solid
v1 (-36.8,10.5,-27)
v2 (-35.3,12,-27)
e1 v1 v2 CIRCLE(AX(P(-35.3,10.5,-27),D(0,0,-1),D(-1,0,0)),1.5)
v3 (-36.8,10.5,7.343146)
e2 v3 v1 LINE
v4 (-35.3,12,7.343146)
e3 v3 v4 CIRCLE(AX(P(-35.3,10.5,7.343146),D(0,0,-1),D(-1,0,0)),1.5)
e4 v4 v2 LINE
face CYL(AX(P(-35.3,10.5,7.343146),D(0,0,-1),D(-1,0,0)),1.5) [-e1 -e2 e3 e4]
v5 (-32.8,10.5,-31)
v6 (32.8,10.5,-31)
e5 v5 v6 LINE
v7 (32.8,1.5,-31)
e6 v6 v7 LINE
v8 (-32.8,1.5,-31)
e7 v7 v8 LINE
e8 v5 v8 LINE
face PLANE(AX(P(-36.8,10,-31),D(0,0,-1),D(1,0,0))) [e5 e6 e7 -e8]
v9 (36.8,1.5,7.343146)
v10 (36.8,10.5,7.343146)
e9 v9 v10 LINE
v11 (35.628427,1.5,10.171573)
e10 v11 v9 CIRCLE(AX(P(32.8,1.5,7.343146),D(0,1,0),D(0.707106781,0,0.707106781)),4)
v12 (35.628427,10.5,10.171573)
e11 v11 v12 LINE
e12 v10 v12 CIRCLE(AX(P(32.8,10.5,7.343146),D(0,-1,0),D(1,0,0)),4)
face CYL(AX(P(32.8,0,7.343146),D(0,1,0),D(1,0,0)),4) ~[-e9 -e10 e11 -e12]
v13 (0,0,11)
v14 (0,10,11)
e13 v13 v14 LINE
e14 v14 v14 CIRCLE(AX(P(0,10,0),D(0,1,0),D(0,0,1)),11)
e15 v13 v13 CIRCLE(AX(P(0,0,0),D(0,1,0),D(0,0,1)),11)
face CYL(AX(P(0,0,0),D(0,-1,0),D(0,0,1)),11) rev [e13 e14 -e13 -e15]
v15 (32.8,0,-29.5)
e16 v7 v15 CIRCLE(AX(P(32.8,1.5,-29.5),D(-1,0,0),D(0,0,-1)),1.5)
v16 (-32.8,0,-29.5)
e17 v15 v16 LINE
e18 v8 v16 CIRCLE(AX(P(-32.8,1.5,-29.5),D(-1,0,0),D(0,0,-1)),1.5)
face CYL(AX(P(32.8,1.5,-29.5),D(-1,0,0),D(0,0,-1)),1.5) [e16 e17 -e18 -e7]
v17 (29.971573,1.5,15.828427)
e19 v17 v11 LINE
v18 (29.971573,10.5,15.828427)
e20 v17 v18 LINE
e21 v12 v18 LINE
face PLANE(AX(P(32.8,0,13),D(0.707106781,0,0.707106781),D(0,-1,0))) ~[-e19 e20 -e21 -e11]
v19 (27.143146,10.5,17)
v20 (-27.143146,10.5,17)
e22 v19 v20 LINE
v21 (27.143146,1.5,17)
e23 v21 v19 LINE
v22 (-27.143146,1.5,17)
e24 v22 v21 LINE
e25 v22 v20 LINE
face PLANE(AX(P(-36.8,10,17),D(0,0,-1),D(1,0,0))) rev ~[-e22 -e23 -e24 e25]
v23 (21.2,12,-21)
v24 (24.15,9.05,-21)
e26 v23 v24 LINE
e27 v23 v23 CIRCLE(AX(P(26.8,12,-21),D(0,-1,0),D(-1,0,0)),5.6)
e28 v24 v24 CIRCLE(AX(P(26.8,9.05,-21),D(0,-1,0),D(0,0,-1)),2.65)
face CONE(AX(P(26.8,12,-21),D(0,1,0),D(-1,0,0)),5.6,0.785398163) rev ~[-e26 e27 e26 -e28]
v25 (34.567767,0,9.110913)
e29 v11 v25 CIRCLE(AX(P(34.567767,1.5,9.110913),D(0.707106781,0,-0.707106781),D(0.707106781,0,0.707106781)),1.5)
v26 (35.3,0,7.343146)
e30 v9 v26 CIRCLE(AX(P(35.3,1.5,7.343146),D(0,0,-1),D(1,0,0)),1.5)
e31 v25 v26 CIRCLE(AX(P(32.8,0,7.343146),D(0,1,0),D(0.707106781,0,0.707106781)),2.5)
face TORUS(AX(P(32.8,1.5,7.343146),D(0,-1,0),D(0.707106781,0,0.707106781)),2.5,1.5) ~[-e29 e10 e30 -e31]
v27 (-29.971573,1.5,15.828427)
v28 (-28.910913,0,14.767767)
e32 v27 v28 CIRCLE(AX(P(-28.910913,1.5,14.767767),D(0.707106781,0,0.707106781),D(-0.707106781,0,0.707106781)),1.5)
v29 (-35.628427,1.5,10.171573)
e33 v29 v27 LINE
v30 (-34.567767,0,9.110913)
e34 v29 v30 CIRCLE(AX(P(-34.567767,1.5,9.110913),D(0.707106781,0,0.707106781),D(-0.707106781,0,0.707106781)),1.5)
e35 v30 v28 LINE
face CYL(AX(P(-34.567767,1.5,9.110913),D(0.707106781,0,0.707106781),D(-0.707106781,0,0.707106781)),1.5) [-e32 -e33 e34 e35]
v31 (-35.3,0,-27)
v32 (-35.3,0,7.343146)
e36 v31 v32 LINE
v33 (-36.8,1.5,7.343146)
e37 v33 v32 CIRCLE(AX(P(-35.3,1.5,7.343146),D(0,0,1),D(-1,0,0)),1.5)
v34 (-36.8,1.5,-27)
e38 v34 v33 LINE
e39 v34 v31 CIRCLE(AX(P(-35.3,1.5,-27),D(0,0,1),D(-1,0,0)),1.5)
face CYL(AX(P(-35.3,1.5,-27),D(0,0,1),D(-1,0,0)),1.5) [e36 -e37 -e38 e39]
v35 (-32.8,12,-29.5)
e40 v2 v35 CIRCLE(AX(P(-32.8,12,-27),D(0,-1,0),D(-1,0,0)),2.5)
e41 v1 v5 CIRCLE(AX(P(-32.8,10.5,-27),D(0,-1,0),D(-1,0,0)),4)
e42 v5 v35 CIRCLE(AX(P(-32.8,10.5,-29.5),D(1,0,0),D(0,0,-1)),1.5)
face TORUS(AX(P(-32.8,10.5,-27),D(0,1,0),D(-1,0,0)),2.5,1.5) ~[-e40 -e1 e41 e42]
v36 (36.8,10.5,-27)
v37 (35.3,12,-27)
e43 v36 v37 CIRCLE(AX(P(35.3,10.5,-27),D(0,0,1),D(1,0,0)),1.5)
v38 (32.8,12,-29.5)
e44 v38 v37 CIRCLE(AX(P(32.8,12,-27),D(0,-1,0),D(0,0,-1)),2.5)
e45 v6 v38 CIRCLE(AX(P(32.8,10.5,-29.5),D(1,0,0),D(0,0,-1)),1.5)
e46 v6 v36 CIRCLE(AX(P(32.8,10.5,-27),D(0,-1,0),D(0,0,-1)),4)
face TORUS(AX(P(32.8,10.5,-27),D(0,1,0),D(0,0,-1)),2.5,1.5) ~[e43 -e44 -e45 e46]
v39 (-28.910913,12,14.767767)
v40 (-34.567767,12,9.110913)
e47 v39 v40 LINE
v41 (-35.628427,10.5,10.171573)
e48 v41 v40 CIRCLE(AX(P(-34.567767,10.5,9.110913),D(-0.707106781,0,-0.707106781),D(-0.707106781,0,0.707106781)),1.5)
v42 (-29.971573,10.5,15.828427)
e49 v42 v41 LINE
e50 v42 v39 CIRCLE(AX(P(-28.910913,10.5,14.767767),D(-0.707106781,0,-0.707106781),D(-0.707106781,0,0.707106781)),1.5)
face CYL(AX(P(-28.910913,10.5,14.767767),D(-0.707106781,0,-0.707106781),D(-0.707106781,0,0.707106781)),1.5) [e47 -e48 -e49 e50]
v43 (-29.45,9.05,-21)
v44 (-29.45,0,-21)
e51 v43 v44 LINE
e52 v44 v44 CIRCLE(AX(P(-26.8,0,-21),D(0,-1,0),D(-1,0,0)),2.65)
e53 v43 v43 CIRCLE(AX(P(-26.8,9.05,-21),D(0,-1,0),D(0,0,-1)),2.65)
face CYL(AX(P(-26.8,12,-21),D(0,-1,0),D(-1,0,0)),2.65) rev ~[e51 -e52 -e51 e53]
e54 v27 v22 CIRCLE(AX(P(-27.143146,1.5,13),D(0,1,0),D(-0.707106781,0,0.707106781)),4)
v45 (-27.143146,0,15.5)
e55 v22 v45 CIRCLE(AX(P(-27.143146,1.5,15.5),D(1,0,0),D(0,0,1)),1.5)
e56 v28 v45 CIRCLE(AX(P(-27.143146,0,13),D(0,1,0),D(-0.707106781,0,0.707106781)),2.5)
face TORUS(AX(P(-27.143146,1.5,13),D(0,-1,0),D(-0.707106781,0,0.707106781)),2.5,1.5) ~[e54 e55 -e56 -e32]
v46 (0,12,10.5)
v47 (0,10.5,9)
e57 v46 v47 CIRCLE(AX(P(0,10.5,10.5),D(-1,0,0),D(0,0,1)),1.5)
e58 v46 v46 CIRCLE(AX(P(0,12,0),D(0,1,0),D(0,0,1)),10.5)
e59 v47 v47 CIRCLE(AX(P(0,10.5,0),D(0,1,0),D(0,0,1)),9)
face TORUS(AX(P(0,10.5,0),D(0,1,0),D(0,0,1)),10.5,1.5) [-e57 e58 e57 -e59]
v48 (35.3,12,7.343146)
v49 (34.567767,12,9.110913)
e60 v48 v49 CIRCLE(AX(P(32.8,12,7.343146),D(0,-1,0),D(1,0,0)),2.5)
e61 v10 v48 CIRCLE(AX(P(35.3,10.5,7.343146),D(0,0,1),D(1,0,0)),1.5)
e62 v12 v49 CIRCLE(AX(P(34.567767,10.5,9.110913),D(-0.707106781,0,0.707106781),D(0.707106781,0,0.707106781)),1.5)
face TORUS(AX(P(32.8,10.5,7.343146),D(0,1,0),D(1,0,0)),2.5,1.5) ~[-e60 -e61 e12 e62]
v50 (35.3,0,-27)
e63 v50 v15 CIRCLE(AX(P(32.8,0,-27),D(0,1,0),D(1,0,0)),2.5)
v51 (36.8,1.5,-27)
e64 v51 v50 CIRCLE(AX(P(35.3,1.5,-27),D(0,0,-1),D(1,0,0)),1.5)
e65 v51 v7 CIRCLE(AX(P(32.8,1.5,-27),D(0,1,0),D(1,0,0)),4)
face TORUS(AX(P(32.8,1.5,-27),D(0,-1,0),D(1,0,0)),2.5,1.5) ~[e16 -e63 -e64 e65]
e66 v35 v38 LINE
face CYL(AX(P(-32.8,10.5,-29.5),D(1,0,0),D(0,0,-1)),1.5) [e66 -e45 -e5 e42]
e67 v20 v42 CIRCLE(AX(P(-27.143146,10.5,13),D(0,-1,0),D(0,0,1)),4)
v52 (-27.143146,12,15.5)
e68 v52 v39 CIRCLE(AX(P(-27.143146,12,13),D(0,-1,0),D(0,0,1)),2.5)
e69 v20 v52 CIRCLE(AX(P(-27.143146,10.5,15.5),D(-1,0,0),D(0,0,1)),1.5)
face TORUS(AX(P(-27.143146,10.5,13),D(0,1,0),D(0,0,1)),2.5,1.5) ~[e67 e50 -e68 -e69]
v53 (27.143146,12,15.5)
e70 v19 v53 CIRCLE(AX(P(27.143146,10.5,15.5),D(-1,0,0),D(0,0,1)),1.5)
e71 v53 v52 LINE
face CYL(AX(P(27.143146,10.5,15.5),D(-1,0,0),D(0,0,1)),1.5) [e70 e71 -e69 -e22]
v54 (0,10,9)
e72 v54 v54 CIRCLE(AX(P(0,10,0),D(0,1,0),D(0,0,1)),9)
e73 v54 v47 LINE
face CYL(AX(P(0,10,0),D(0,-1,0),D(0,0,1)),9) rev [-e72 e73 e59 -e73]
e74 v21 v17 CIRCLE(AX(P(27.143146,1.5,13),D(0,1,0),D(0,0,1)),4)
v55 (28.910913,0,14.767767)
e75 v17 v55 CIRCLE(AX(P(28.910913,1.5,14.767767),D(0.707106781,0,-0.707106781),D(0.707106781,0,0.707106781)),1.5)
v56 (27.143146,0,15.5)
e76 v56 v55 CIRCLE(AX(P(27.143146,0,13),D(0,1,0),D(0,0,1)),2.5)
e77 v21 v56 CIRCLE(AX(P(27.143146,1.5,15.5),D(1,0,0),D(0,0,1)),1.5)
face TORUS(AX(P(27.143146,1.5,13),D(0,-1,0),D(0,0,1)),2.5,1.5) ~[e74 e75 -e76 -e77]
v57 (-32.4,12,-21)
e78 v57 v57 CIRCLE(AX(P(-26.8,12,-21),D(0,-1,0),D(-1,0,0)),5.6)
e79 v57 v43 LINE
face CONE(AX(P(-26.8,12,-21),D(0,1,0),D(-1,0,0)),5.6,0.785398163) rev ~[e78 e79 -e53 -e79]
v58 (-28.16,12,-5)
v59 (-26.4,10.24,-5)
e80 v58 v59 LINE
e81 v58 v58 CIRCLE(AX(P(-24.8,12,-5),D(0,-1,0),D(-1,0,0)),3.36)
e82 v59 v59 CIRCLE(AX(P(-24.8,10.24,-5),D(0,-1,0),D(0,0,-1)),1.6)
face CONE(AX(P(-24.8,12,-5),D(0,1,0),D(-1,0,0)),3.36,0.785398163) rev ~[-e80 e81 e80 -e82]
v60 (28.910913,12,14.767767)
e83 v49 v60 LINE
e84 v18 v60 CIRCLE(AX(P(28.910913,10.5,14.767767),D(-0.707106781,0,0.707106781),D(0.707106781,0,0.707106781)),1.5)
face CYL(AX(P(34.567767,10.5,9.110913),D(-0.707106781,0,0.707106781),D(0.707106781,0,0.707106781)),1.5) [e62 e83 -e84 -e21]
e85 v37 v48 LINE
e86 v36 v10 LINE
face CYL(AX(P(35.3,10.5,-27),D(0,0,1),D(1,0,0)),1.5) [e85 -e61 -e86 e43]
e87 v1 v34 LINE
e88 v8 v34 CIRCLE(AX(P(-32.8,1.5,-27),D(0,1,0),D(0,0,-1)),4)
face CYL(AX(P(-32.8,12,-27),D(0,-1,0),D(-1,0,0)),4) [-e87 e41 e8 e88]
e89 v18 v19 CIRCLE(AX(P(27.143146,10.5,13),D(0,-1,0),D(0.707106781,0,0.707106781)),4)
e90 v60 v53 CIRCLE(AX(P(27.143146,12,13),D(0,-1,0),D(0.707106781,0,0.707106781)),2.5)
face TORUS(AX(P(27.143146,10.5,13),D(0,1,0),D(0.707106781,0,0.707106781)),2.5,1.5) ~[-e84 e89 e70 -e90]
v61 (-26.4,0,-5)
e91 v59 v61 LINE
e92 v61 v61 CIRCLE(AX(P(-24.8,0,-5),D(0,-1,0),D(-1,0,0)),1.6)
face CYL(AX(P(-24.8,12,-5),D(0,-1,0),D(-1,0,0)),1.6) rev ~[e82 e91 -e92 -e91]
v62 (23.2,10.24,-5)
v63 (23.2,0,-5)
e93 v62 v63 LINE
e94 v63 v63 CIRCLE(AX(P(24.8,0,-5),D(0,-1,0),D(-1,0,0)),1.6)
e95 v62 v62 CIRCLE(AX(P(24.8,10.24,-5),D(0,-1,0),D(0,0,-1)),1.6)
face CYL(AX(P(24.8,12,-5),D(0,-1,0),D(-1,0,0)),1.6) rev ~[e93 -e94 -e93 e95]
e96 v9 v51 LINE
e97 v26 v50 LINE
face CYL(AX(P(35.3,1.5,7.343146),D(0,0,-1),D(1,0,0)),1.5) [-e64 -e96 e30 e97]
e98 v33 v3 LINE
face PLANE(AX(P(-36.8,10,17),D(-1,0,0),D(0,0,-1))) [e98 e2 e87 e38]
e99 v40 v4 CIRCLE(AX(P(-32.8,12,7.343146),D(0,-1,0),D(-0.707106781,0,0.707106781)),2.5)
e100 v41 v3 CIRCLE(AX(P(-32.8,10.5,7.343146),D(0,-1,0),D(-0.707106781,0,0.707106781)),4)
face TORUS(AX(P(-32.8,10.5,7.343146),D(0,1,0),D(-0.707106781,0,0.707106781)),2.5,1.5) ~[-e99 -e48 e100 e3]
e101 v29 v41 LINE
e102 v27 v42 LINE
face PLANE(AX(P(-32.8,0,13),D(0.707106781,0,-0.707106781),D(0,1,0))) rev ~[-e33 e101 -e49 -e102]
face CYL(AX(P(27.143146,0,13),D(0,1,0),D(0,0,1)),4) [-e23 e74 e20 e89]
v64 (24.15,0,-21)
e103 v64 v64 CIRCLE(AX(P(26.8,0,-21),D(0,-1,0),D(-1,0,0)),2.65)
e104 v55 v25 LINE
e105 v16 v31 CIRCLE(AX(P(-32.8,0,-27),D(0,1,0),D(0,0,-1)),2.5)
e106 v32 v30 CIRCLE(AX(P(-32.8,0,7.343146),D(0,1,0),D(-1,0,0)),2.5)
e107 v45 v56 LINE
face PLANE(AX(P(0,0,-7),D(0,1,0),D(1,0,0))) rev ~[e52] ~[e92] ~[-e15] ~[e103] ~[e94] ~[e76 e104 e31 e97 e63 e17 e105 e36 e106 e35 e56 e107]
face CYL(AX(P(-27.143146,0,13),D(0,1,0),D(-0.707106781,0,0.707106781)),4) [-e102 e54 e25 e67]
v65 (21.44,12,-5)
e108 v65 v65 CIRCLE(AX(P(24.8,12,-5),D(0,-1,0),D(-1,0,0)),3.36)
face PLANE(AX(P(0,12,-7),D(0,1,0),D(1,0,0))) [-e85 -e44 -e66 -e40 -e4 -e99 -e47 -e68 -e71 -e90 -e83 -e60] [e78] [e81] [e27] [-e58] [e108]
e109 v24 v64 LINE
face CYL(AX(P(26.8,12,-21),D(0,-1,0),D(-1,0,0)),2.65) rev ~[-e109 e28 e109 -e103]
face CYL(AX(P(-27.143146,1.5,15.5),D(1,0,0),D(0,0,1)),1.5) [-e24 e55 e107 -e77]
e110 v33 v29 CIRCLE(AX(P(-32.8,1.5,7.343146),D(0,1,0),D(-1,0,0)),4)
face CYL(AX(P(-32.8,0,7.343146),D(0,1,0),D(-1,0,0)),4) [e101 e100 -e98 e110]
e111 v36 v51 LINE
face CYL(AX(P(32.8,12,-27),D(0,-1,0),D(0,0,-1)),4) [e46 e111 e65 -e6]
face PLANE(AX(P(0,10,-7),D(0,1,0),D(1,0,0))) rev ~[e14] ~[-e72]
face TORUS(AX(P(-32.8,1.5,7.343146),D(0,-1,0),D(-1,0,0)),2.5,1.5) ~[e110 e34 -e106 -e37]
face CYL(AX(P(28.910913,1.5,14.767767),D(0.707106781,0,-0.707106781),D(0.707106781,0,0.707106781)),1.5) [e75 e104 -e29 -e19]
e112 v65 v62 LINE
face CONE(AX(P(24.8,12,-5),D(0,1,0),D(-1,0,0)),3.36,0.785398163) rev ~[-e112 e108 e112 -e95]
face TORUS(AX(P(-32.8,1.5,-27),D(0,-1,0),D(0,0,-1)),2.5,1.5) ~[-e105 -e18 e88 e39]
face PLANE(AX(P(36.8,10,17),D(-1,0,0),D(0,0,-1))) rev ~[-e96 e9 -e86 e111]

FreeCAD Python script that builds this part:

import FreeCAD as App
import Part
import Sketcher
from FreeCAD import Vector
Q = App.Units.Quantity


def edges_at(feature, points):
    """Names of the edges that pass closest to the given points."""
    edges = feature.Shape.Edges
    near = lambda p: min(range(len(edges)), key=lambda i: edges[i].distToShape(Part.Vertex(*p))[0])
    return sorted({f"Edge{near(p) + 1}" for p in points})

doc = App.newDocument("Part")
params = doc.addObject("Spreadsheet::Sheet", "Params")
for row, (alias, value) in enumerate([
    ("sketch1_diameter", "22 mm"),
    ("sketch1_height", "48 mm"),
    ("sketch1_width", "73.6 mm"),
    ("pad1_length", "10 mm"),
    ("sketch2_diameter", "18 mm"),
    ("sketch2_height", "48 mm"),
    ("sketch2_width", "73.6 mm"),
    ("pad2_length", "2 mm"),
    ("sketch3_diameter", "5.3 mm"),
    ("hole_diameter", "5.3 mm"),
    ("hole_csink_diameter", "11.2 mm"),
    ("chamfer_size", "8 mm"),
    ("fillet_radius", "4 mm"),
    ("fillet2_radius", "1.5 mm"),
    ("sketch4_diameter", "3.2 mm"),
    ("hole2_diameter", "3.2 mm"),
    ("hole2_csink_diameter", "6.72 mm"),
], start=1):
    params.set(f"A{row}", alias)
    params.set(f"B{row}", "=" + value)
    params.setAlias(f"B{row}", alias)

body = doc.addObject("PartDesign::Body", "Body")

# Sketch on XZ plane
sketch1 = doc.addObject("Sketcher::SketchObject", "Sketch")
body.addObject(sketch1)
sketch1.AttachmentSupport = (doc.XZ_Plane, [""])
sketch1.MapMode = "FlatFace"
sketch1.addGeometry([
    Part.LineSegment(Vector(36.8, 17, 0), Vector(36.8, -31, 0)),  # 0
    Part.LineSegment(Vector(36.8, -31, 0), Vector(-36.8, -31, 0)),  # 1
    Part.LineSegment(Vector(-36.8, -31, 0), Vector(-36.8, 17, 0)),  # 2
    Part.LineSegment(Vector(-36.8, 17, 0), Vector(36.8, 17, 0)),  # 3
    Part.Circle(Vector(0, 0, 0), Vector(0, 0, 1), 11),  # 4
], False)
sketch1.addConstraint([
    Sketcher.Constraint("Coincident", 0, 2, 1, 1),
    Sketcher.Constraint("Coincident", 1, 2, 2, 1),
    Sketcher.Constraint("Coincident", 2, 2, 3, 1),
    Sketcher.Constraint("Coincident", 3, 2, 0, 1),
    Sketcher.Constraint("Vertical", 0),
    Sketcher.Constraint("Horizontal", 1),
    Sketcher.Constraint("Vertical", 2),
    Sketcher.Constraint("Horizontal", 3),
    Sketcher.Constraint("Coincident", 4, 3, -1, 1),
    Sketcher.Constraint("Diameter", 4, Q("22 mm")),
    Sketcher.Constraint("DistanceY", 0, 2, 0, 1, Q("48 mm")),
    Sketcher.Constraint("DistanceX", 1, 2, 1, 1, Q("73.6 mm")),
    Sketcher.Constraint("DistanceY", 0, 2, -1, 1, Q("31 mm")),
    Sketcher.Constraint("DistanceX", -1, 1, 0, 2, Q("36.8 mm")),
])
sketch1.setExpression("Constraints[9]", "Params.sketch1_diameter")
sketch1.setExpression("Constraints[10]", "Params.sketch1_height")
sketch1.setExpression("Constraints[11]", "Params.sketch1_width")
pad1 = doc.addObject("PartDesign::Pad", "Pad")
body.addObject(pad1)
pad1.Profile = sketch1
pad1.setExpression("Length", "Params.pad1_length")
pad1.Reversed = True

# Sketch on XZ plane
sketch2 = doc.addObject("Sketcher::SketchObject", "Sketch001")
body.addObject(sketch2)
sketch2.AttachmentSupport = (doc.XZ_Plane, [""])
sketch2.MapMode = "FlatFace"
sketch2.AttachmentOffset = App.Placement(Vector(0, 0, -10), App.Rotation())
sketch2.addGeometry([
    Part.LineSegment(Vector(-36.8, -31, 0), Vector(-36.8, 17, 0)),  # 0
    Part.LineSegment(Vector(-36.8, 17, 0), Vector(36.8, 17, 0)),  # 1
    Part.LineSegment(Vector(36.8, 17, 0), Vector(36.8, -31, 0)),  # 2
    Part.LineSegment(Vector(36.8, -31, 0), Vector(-36.8, -31, 0)),  # 3
    Part.Circle(Vector(0, 0, 0), Vector(0, 0, 1), 9),  # 4
], False)
sketch2.addConstraint([
    Sketcher.Constraint("Coincident", 0, 2, 1, 1),
    Sketcher.Constraint("Coincident", 1, 2, 2, 1),
    Sketcher.Constraint("Coincident", 2, 2, 3, 1),
    Sketcher.Constraint("Coincident", 3, 2, 0, 1),
    Sketcher.Constraint("Vertical", 0),
    Sketcher.Constraint("Horizontal", 1),
    Sketcher.Constraint("Vertical", 2),
    Sketcher.Constraint("Horizontal", 3),
    Sketcher.Constraint("Coincident", 4, 3, -1, 1),
    Sketcher.Constraint("Diameter", 4, Q("18 mm")),
    Sketcher.Constraint("DistanceY", 0, 1, 0, 2, Q("48 mm")),
    Sketcher.Constraint("DistanceX", 1, 1, 1, 2, Q("73.6 mm")),
    Sketcher.Constraint("DistanceY", -1, 1, 0, 2, Q("17 mm")),
    Sketcher.Constraint("DistanceX", 0, 2, -1, 1, Q("36.8 mm")),
])
sketch2.setExpression("Constraints[9]", "Params.sketch2_diameter")
sketch2.setExpression("Constraints[10]", "Params.sketch2_height")
sketch2.setExpression("Constraints[11]", "Params.sketch2_width")
pad2 = doc.addObject("PartDesign::Pad", "Pad001")
body.addObject(pad2)
pad2.Profile = sketch2
pad2.setExpression("Length", "Params.pad2_length")
pad2.Reversed = True

# Sketch on XZ plane
sketch3 = doc.addObject("Sketcher::SketchObject", "Sketch002")
body.addObject(sketch3)
sketch3.AttachmentSupport = (doc.XZ_Plane, [""])
sketch3.MapMode = "FlatFace"
sketch3.AttachmentOffset = App.Placement(Vector(0, 0, -12), App.Rotation())
sketch3.addGeometry([
    Part.Circle(Vector(26.8, -21, 0), Vector(0, 0, 1), 2.65),
    Part.Circle(Vector(-26.8, -21, 0), Vector(0, 0, 1), 2.65),
], False)
sketch3.addConstraint([
    Sketcher.Constraint("Equal", 0, 1),
    Sketcher.Constraint("Symmetric", 0, 3, 1, 3, -2),
    Sketcher.Constraint("Diameter", 0, Q("5.3 mm")),
    Sketcher.Constraint("DistanceY", 0, 3, -1, 1, Q("21 mm")),
    Sketcher.Constraint("DistanceX", -1, 1, 0, 3, Q("26.8 mm")),
])
sketch3.setExpression("Constraints[2]", "Params.sketch3_diameter")
doc.recompute()
hole = doc.addObject("PartDesign::Hole", "Hole")
body.addObject(hole)
hole.Profile = sketch3
hole.ThreadType = "None"
hole.setExpression("Diameter", "Params.hole_diameter")
hole.DepthType = "ThroughAll"
hole.HoleCutType = "Countersink"
hole.setExpression("HoleCutDiameter", "Params.hole_csink_diameter")
hole.HoleCutCountersinkAngle = 90
hole.Reversed = True
doc.recompute()

chamfer = doc.addObject("PartDesign::Chamfer", "Chamfer")
body.addObject(chamfer)
chamfer.Base = (hole, edges_at(hole, [(-36.8, 6, 17), (36.8, 6, 17)]))
chamfer.setExpression("Size", "Params.chamfer_size")
doc.recompute()

fillet = doc.addObject("PartDesign::Fillet", "Fillet")
body.addObject(fillet)
fillet.Base = (chamfer, edges_at(chamfer, [
    (-36.8, 6, -31),
    (36.8, 6, -31),
    (28.8, 6, 17),
    (-28.8, 6, 17),
    (-36.8, 6, 9),
    (36.8, 6, 9),
]))
fillet.setExpression("Radius", "Params.fillet_radius")
doc.recompute()

fillet2 = doc.addObject("PartDesign::Fillet", "Fillet001")
body.addObject(fillet2)
fillet2.Base = (fillet, edges_at(fillet, [
    (0, 12, -9),
    (-36.8, 0, -9.828),
    (-36.8, 12, -9.828),
    (0, 0, 17),
    (-32.8, 0, 13),
    (0, 0, -31),
    (36.8, 0, -9.828),
    (32.8, 0, 13),
    (-28.674, 0, 16.696),
    (-36.496, 0, 8.874),
    (28.674, 0, 16.696),
    (36.496, 0, 8.874),
    (35.628, 0, -29.828),
    (-35.628, 0, -29.828),
    (0, 12, -31),
    (-32.8, 12, 13),
    (0, 12, 17),
    (32.8, 12, 13),
    (36.8, 12, -9.828),
    (-28.674, 12, 16.696),
    (-36.496, 12, 8.874),
    (28.674, 12, 16.696),
    (36.496, 12, 8.874),
    (35.628, 12, -29.828),
    (-35.628, 12, -29.828),
]))
fillet2.setExpression("Radius", "Params.fillet2_radius")

# Sketch on XZ plane
sketch4 = doc.addObject("Sketcher::SketchObject", "Sketch003")
body.addObject(sketch4)
sketch4.AttachmentSupport = (doc.XZ_Plane, [""])
sketch4.MapMode = "FlatFace"
sketch4.AttachmentOffset = App.Placement(Vector(0, 0, -12), App.Rotation())
sketch4.addGeometry([
    Part.Circle(Vector(24.8, -5, 0), Vector(0, 0, 1), 1.6),
    Part.Circle(Vector(-24.8, -5, 0), Vector(0, 0, 1), 1.6),
], False)
sketch4.addConstraint([
    Sketcher.Constraint("Equal", 0, 1),
    Sketcher.Constraint("Symmetric", 0, 3, 1, 3, -2),
    Sketcher.Constraint("Diameter", 0, Q("3.2 mm")),
    Sketcher.Constraint("DistanceY", 0, 3, -1, 1, Q("5 mm")),
    Sketcher.Constraint("DistanceX", -1, 1, 0, 3, Q("24.8 mm")),
])
sketch4.setExpression("Constraints[2]", "Params.sketch4_diameter")
doc.recompute()
hole2 = doc.addObject("PartDesign::Hole", "Hole001")
body.addObject(hole2)
hole2.Profile = sketch4
hole2.ThreadType = "None"
hole2.setExpression("Diameter", "Params.hole2_diameter")
hole2.DepthType = "ThroughAll"
hole2.HoleCutType = "Countersink"
hole2.setExpression("HoleCutDiameter", "Params.hole2_csink_diameter")
hole2.HoleCutCountersinkAngle = 90
hole2.Reversed = True

doc.recompute()
